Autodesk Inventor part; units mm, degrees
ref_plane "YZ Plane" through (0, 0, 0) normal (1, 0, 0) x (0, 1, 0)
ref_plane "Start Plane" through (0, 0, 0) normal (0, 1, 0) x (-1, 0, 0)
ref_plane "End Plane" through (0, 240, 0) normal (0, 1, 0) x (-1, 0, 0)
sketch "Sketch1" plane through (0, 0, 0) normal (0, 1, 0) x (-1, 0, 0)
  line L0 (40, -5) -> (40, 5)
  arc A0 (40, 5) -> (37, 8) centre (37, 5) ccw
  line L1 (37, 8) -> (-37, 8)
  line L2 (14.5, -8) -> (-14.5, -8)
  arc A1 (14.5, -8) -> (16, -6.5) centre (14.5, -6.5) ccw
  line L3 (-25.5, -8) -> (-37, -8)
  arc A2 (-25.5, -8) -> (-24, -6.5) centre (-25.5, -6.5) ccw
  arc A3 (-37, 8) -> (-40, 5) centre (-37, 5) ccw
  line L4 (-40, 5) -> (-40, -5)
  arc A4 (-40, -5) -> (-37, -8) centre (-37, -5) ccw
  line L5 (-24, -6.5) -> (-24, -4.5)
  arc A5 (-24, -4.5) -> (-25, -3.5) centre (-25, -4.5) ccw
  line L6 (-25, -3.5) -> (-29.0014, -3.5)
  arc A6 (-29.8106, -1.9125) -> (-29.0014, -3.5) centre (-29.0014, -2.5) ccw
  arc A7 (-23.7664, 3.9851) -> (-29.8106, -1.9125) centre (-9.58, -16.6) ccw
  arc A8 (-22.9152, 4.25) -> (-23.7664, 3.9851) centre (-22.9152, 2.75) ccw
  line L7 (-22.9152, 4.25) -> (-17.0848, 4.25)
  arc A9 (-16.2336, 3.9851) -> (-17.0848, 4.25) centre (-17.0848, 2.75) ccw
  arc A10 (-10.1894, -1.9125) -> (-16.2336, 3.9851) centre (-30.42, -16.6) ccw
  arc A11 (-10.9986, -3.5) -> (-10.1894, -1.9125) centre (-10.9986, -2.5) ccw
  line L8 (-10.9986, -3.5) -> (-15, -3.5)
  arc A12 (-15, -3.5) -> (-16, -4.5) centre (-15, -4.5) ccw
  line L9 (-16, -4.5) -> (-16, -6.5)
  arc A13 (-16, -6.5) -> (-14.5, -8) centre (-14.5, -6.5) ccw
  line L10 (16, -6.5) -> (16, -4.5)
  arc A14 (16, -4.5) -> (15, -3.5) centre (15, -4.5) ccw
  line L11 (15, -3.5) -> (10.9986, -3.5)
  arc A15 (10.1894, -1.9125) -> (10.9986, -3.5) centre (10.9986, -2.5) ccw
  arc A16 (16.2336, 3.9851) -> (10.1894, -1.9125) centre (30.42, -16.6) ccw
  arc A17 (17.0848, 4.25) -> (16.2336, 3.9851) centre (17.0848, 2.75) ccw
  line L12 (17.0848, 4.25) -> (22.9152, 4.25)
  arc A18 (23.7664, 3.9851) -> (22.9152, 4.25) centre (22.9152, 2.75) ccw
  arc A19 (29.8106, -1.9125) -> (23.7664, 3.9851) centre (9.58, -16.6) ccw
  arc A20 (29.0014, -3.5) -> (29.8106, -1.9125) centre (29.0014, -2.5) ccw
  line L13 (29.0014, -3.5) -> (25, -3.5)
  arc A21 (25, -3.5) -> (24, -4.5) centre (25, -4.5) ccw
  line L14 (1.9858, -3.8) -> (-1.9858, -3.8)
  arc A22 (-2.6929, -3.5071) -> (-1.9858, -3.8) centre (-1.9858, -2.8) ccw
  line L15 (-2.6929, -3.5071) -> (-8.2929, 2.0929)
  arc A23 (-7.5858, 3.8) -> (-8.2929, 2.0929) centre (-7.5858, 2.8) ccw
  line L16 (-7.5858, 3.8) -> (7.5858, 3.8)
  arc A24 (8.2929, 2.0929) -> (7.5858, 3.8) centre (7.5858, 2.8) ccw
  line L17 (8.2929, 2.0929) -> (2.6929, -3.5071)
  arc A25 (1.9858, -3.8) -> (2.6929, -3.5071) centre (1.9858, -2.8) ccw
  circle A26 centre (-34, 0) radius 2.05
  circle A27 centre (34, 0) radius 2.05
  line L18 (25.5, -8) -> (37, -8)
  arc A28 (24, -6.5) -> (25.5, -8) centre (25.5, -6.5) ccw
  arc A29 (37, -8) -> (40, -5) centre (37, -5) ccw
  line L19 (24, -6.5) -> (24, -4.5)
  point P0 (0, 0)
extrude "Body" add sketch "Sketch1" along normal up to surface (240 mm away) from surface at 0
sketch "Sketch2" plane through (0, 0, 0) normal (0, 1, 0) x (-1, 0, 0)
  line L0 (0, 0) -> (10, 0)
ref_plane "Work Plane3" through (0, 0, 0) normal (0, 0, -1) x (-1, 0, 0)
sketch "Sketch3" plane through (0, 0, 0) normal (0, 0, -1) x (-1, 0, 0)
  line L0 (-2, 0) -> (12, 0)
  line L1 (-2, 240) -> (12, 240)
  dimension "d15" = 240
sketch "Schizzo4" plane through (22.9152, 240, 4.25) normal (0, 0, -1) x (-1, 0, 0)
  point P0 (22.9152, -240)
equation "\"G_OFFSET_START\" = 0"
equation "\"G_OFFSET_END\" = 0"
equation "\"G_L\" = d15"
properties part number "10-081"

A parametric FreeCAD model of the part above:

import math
import FreeCAD as App
import Part
import Sketcher

V = App.Vector

doc = App.newDocument("Part")
body = doc.addObject("PartDesign::Body", "Body")

# Sketch on XZ plane
sketch1 = doc.addObject("Sketcher::SketchObject", "Sketch")
body.addObject(sketch1)
sketch1.AttachmentSupport = (doc.XZ_Plane, [""])
sketch1.MapMode = "FlatFace"
sketch1.addGeometry(Part.ArcOfCircle(Part.Circle(V(-37, -5, 0), V(0, 0, 1), 3), math.radians(180), math.radians(270)), False)
sketch1.addGeometry(Part.LineSegment(V(-40, -5, 0), V(-40, 5, 0)), False)
sketch1.addGeometry(Part.ArcOfCircle(Part.Circle(V(-37, 5, 0), V(0, 0, 1), 3), math.radians(90), math.radians(180)), False)
sketch1.addGeometry(Part.LineSegment(V(-37, 8, 0), V(37, 8, 0)), False)
sketch1.addGeometry(Part.ArcOfCircle(Part.Circle(V(37, 5, 0), V(0, 0, 1), 3), math.radians(0), math.radians(90)), False)
sketch1.addGeometry(Part.LineSegment(V(40, 5, 0), V(40, -5, 0)), False)
sketch1.addGeometry(Part.ArcOfCircle(Part.Circle(V(37, -5, 0), V(0, 0, 1), 3), math.radians(-90), math.radians(0)), False)
sketch1.addGeometry(Part.LineSegment(V(37, -8, 0), V(25.5, -8, 0)), False)
sketch1.addGeometry(Part.ArcOfCircle(Part.Circle(V(25.5, -6.5, 0), V(0, 0, 1), 1.5), math.radians(180), math.radians(270)), False)
sketch1.addGeometry(Part.LineSegment(V(24, -6.5, 0), V(24, -4.5, 0)), False)
sketch1.addGeometry(Part.ArcOfCircle(Part.Circle(V(25, -4.5, 0), V(0, 0, 1), 1), math.radians(90), math.radians(180)), False)
sketch1.addGeometry(Part.LineSegment(V(25, -3.5, 0), V(29, -3.5, 0)), False)
sketch1.addGeometry(Part.ArcOfCircle(Part.Circle(V(29, -2.5, 0), V(0, 0, 1), 1), math.radians(-90), math.radians(36)), False)
sketch1.addGeometry(Part.ArcOfCircle(Part.Circle(V(9.6, -16.6, 0), V(0, 0, 1), 25), math.radians(35.98), math.radians(55.43)), False)
sketch1.addGeometry(Part.ArcOfCircle(Part.Circle(V(22.9, 2.8, 0), V(0, 0, 1), 1.5), math.radians(55), math.radians(90)), False)
sketch1.addGeometry(Part.LineSegment(V(22.9, 4.2, 0), V(17.1, 4.2, 0)), False)
sketch1.addGeometry(Part.ArcOfCircle(Part.Circle(V(17.1, 2.8, 0), V(0, 0, 1), 1.5), math.radians(90), math.radians(125)), False)
sketch1.addGeometry(Part.ArcOfCircle(Part.Circle(V(30.4, -16.6, 0), V(0, 0, 1), 25), math.radians(124.57), math.radians(144.02)), False)
sketch1.addGeometry(Part.ArcOfCircle(Part.Circle(V(11, -2.5, 0), V(0, 0, 1), 1), math.radians(144), math.radians(270)), False)
sketch1.addGeometry(Part.LineSegment(V(11, -3.5, 0), V(15, -3.5, 0)), False)
sketch1.addGeometry(Part.ArcOfCircle(Part.Circle(V(15, -4.5, 0), V(0, 0, 1), 1), math.radians(0), math.radians(90)), False)
sketch1.addGeometry(Part.LineSegment(V(16, -4.5, 0), V(16, -6.5, 0)), False)
sketch1.addGeometry(Part.ArcOfCircle(Part.Circle(V(14.5, -6.5, 0), V(0, 0, 1), 1.5), math.radians(-90), math.radians(0)), False)
sketch1.addGeometry(Part.LineSegment(V(14.5, -8, 0), V(-14.5, -8, 0)), False)
sketch1.addGeometry(Part.ArcOfCircle(Part.Circle(V(-14.5, -6.5, 0), V(0, 0, 1), 1.5), math.radians(180), math.radians(270)), False)
sketch1.addGeometry(Part.LineSegment(V(-16, -6.5, 0), V(-16, -4.5, 0)), False)
sketch1.addGeometry(Part.ArcOfCircle(Part.Circle(V(-15, -4.5, 0), V(0, 0, 1), 1), math.radians(90), math.radians(180)), False)
sketch1.addGeometry(Part.LineSegment(V(-15, -3.5, 0), V(-11, -3.5, 0)), False)
sketch1.addGeometry(Part.ArcOfCircle(Part.Circle(V(-11, -2.5, 0), V(0, 0, 1), 1), math.radians(-90), math.radians(36)), False)
sketch1.addGeometry(Part.ArcOfCircle(Part.Circle(V(-30.4, -16.6, 0), V(0, 0, 1), 25), math.radians(35.98), math.radians(55.43)), False)
sketch1.addGeometry(Part.ArcOfCircle(Part.Circle(V(-17.1, 2.8, 0), V(0, 0, 1), 1.5), math.radians(55), math.radians(90)), False)
sketch1.addGeometry(Part.LineSegment(V(-17.1, 4.2, 0), V(-22.9, 4.2, 0)), False)
sketch1.addGeometry(Part.ArcOfCircle(Part.Circle(V(-22.9, 2.8, 0), V(0, 0, 1), 1.5), math.radians(90), math.radians(125)), False)
sketch1.addGeometry(Part.ArcOfCircle(Part.Circle(V(-9.6, -16.6, 0), V(0, 0, 1), 25), math.radians(124.57), math.radians(144.02)), False)
sketch1.addGeometry(Part.ArcOfCircle(Part.Circle(V(-29, -2.5, 0), V(0, 0, 1), 1), math.radians(144), math.radians(270)), False)
sketch1.addGeometry(Part.LineSegment(V(-29, -3.5, 0), V(-25, -3.5, 0)), False)
sketch1.addGeometry(Part.ArcOfCircle(Part.Circle(V(-25, -4.5, 0), V(0, 0, 1), 1), math.radians(0), math.radians(90)), False)
sketch1.addGeometry(Part.LineSegment(V(-24, -4.5, 0), V(-24, -6.5, 0)), False)
sketch1.addGeometry(Part.ArcOfCircle(Part.Circle(V(-25.5, -6.5, 0), V(0, 0, 1), 1.5), math.radians(-90), math.radians(0)), False)
sketch1.addGeometry(Part.LineSegment(V(-25.5, -8, 0), V(-37, -8, 0)), False)
sketch1.addGeometry(Part.ArcOfCircle(Part.Circle(V(-2, -2.8, 0), V(0, 0, 1), 1), math.radians(-135), math.radians(-90)), False)
sketch1.addGeometry(Part.LineSegment(V(-2, -3.8, 0), V(2, -3.8, 0)), False)
sketch1.addGeometry(Part.ArcOfCircle(Part.Circle(V(2, -2.8, 0), V(0, 0, 1), 1), math.radians(-90), math.radians(-45)), False)
sketch1.addGeometry(Part.LineSegment(V(2.7, -3.5, 0), V(8.3, 2.1, 0)), False)
sketch1.addGeometry(Part.ArcOfCircle(Part.Circle(V(7.6, 2.8, 0), V(0, 0, 1), 1), math.radians(-45), math.radians(90)), False)
sketch1.addGeometry(Part.LineSegment(V(7.6, 3.8, 0), V(-7.6, 3.8, 0)), False)
sketch1.addGeometry(Part.ArcOfCircle(Part.Circle(V(-7.6, 2.8, 0), V(0, 0, 1), 1), math.radians(90), math.radians(225)), False)
sketch1.addGeometry(Part.LineSegment(V(-8.3, 2.1, 0), V(-2.7, -3.5, 0)), False)
sketch1.addGeometry(Part.Circle(V(34, 0, 0), V(0, 0, 1), 2), False)
sketch1.addGeometry(Part.Circle(V(-34, 0, 0), V(0, 0, 1), 2), False)
sketch1.addConstraint(Sketcher.Constraint("Tangent", 0, 1, 1, 1))
sketch1.addConstraint(Sketcher.Constraint("Tangent", 1, 2, 2, 2))
sketch1.addConstraint(Sketcher.Constraint("Tangent", 2, 1, 3, 1))
sketch1.addConstraint(Sketcher.Constraint("Tangent", 3, 2, 4, 2))
sketch1.addConstraint(Sketcher.Constraint("Tangent", 4, 1, 5, 1))
sketch1.addConstraint(Sketcher.Constraint("Tangent", 5, 2, 6, 2))
sketch1.addConstraint(Sketcher.Constraint("Tangent", 6, 1, 7, 1))
sketch1.addConstraint(Sketcher.Constraint("Tangent", 7, 2, 8, 2))
sketch1.addConstraint(Sketcher.Constraint("Tangent", 8, 1, 9, 1))
sketch1.addConstraint(Sketcher.Constraint("Tangent", 9, 2, 10, 2))
sketch1.addConstraint(Sketcher.Constraint("Tangent", 10, 1, 11, 1))
sketch1.addConstraint(Sketcher.Constraint("Tangent", 11, 2, 12, 1))
sketch1.addConstraint(Sketcher.Constraint("Tangent", 12, 2, 13, 1))
sketch1.addConstraint(Sketcher.Constraint("Tangent", 13, 2, 14, 1))
sketch1.addConstraint(Sketcher.Constraint("Tangent", 14, 2, 15, 1))
sketch1.addConstraint(Sketcher.Constraint("Tangent", 15, 2, 16, 1))
sketch1.addConstraint(Sketcher.Constraint("Tangent", 16, 2, 17, 1))
sketch1.addConstraint(Sketcher.Constraint("Tangent", 17, 2, 18, 1))
sketch1.addConstraint(Sketcher.Constraint("Tangent", 18, 2, 19, 1))
sketch1.addConstraint(Sketcher.Constraint("Tangent", 19, 2, 20, 2))
sketch1.addConstraint(Sketcher.Constraint("Tangent", 20, 1, 21, 1))
sketch1.addConstraint(Sketcher.Constraint("Tangent", 21, 2, 22, 2))
sketch1.addConstraint(Sketcher.Constraint("Tangent", 22, 1, 23, 1))
sketch1.addConstraint(Sketcher.Constraint("Tangent", 23, 2, 24, 2))
sketch1.addConstraint(Sketcher.Constraint("Tangent", 24, 1, 25, 1))
sketch1.addConstraint(Sketcher.Constraint("Tangent", 25, 2, 26, 2))
sketch1.addConstraint(Sketcher.Constraint("Tangent", 26, 1, 27, 1))
sketch1.addConstraint(Sketcher.Constraint("Tangent", 27, 2, 28, 1))
sketch1.addConstraint(Sketcher.Constraint("Tangent", 28, 2, 29, 1))
sketch1.addConstraint(Sketcher.Constraint("Tangent", 29, 2, 30, 1))
sketch1.addConstraint(Sketcher.Constraint("Tangent", 30, 2, 31, 1))
sketch1.addConstraint(Sketcher.Constraint("Tangent", 31, 2, 32, 1))
sketch1.addConstraint(Sketcher.Constraint("Tangent", 32, 2, 33, 1))
sketch1.addConstraint(Sketcher.Constraint("Tangent", 33, 2, 34, 1))
sketch1.addConstraint(Sketcher.Constraint("Tangent", 34, 2, 35, 1))
sketch1.addConstraint(Sketcher.Constraint("Tangent", 35, 2, 36, 2))
sketch1.addConstraint(Sketcher.Constraint("Tangent", 36, 1, 37, 1))
sketch1.addConstraint(Sketcher.Constraint("Tangent", 37, 2, 38, 2))
sketch1.addConstraint(Sketcher.Constraint("Tangent", 38, 1, 39, 1))
sketch1.addConstraint(Sketcher.Constraint("Tangent", 39, 2, 0, 2))
sketch1.addConstraint(Sketcher.Constraint("Tangent", 40, 2, 41, 1))
sketch1.addConstraint(Sketcher.Constraint("Tangent", 41, 2, 42, 1))
sketch1.addConstraint(Sketcher.Constraint("Tangent", 42, 2, 43, 1))
sketch1.addConstraint(Sketcher.Constraint("Tangent", 43, 2, 44, 1))
sketch1.addConstraint(Sketcher.Constraint("Tangent", 44, 2, 45, 1))
sketch1.addConstraint(Sketcher.Constraint("Tangent", 45, 2, 46, 1))
sketch1.addConstraint(Sketcher.Constraint("Tangent", 46, 2, 47, 1))
sketch1.addConstraint(Sketcher.Constraint("Tangent", 47, 2, 40, 1))
sketch1.addConstraint(Sketcher.Constraint("Vertical", 1))
sketch1.addConstraint(Sketcher.Constraint("Horizontal", 3))
sketch1.addConstraint(Sketcher.Constraint("Vertical", 5))
sketch1.addConstraint(Sketcher.Constraint("Horizontal", 7))
sketch1.addConstraint(Sketcher.Constraint("Vertical", 9))
sketch1.addConstraint(Sketcher.Constraint("Horizontal", 11))
sketch1.addConstraint(Sketcher.Constraint("Horizontal", 15))
sketch1.addConstraint(Sketcher.Constraint("Horizontal", 19))
sketch1.addConstraint(Sketcher.Constraint("Vertical", 21))
sketch1.addConstraint(Sketcher.Constraint("Horizontal", 23))
sketch1.addConstraint(Sketcher.Constraint("Vertical", 25))
sketch1.addConstraint(Sketcher.Constraint("Horizontal", 27))
sketch1.addConstraint(Sketcher.Constraint("Horizontal", 31))
sketch1.addConstraint(Sketcher.Constraint("Horizontal", 35))
sketch1.addConstraint(Sketcher.Constraint("Vertical", 37))
sketch1.addConstraint(Sketcher.Constraint("Horizontal", 39))
sketch1.addConstraint(Sketcher.Constraint("Horizontal", 41))
sketch1.addConstraint(Sketcher.Constraint("Horizontal", 45))
sketch1.addConstraint(Sketcher.Constraint("Equal", 0, 2))
sketch1.addConstraint(Sketcher.Constraint("Equal", 2, 4))
sketch1.addConstraint(Sketcher.Constraint("Equal", 4, 6))
sketch1.addConstraint(Sketcher.Constraint("Equal", 10, 12))
sketch1.addConstraint(Sketcher.Constraint("Equal", 8, 14))
sketch1.addConstraint(Sketcher.Constraint("Equal", 14, 16))
sketch1.addConstraint(Sketcher.Constraint("Equal", 13, 17))
sketch1.addConstraint(Sketcher.Constraint("Equal", 12, 18))
sketch1.addConstraint(Sketcher.Constraint("Equal", 18, 20))
sketch1.addConstraint(Sketcher.Constraint("Equal", 16, 22))
sketch1.addConstraint(Sketcher.Constraint("Equal", 22, 24))
sketch1.addConstraint(Sketcher.Constraint("Equal", 20, 26))
sketch1.addConstraint(Sketcher.Constraint("Equal", 26, 28))
sketch1.addConstraint(Sketcher.Constraint("Equal", 17, 29))
sketch1.addConstraint(Sketcher.Constraint("Equal", 24, 30))
sketch1.addConstraint(Sketcher.Constraint("Equal", 30, 32))
sketch1.addConstraint(Sketcher.Constraint("Equal", 29, 33))
sketch1.addConstraint(Sketcher.Constraint("Equal", 28, 34))
sketch1.addConstraint(Sketcher.Constraint("Equal", 34, 36))
sketch1.addConstraint(Sketcher.Constraint("Equal", 32, 38))
sketch1.addConstraint(Sketcher.Constraint("Equal", 36, 40))
sketch1.addConstraint(Sketcher.Constraint("Equal", 40, 42))
sketch1.addConstraint(Sketcher.Constraint("Equal", 42, 44))
sketch1.addConstraint(Sketcher.Constraint("Equal", 44, 46))
sketch1.addConstraint(Sketcher.Constraint("Equal", 48, 49))
sketch1.addConstraint(Sketcher.Constraint("Symmetric", 0, 3, 4, 3, -1, 1))
sketch1.addConstraint(Sketcher.Constraint("Symmetric", 48, 3, 49, 3, -1, 1))
sketch1.addConstraint(Sketcher.Constraint("Symmetric", 20, 3, 26, 3, -2))
sketch1.addConstraint(Sketcher.Constraint("Symmetric", 17, 3, 29, 3, -2))
sketch1.addConstraint(Sketcher.Constraint("Symmetric", 14, 3, 32, 3, -2))
sketch1.addConstraint(Sketcher.Constraint("Symmetric", 12, 3, 34, 3, -2))
sketch1.addConstraint(Sketcher.Constraint("Symmetric", 8, 3, 38, 3, -2))
sketch1.addConstraint(Sketcher.Constraint("Symmetric", 43, 2, 46, 2, -2))
sketch1.addConstraint(Sketcher.Constraint("PointOnObject", 48, 3, -1))
sketch1.addConstraint(Sketcher.Constraint("Perpendicular", 43, 47))
sketch1.addConstraint(Sketcher.Constraint("Horizontal", 13, 3, 17, 3))
sketch1.addConstraint(Sketcher.Constraint("Horizontal", 12, 3, 18, 3))
sketch1.addConstraint(Sketcher.Constraint("Horizontal", 8, 3, 22, 3))
sketch1.addConstraint(Sketcher.Constraint("Equal", 11, 19))
sketch1.addConstraint(Sketcher.Constraint("Radius", 0, 3.0))
sketch1.addConstraint(Sketcher.Constraint("Radius", 10, 1.0))
sketch1.addConstraint(Sketcher.Constraint("Radius", 13, 25.0))
sketch1.addConstraint(Sketcher.Constraint("Diameter", 48, 4.1))
sketch1.addConstraint(Sketcher.Constraint("Radius", 8, 1.5))
sketch1.addConstraint(Sketcher.Constraint("DistanceX", 3, 1, 3, 2, 74.0))
sketch1.addConstraint(Sketcher.Constraint("DistanceX", 23, 2, 23, 1, 29.0))
sketch1.addConstraint(Sketcher.Constraint("DistanceY", 1, 1, 1, 2, 10.0))
sketch1.addConstraint(Sketcher.Constraint("DistanceY", 9, 1, 9, 2, 2.0))
sketch1.addConstraint(Sketcher.Constraint("DistanceX", 7, 2, 7, 1, 11.5))
sketch1.addConstraint(Sketcher.Constraint("DistanceX", -1, 1, 48, 3, 34.0))
sketch1.addConstraint(Sketcher.Constraint("DistanceY", 13, 3, -1, 1, 16.6))
sketch1.addConstraint(Sketcher.Constraint("DistanceY", 40, 3, -1, 1, 2.8))
sketch1.addConstraint(Sketcher.Constraint("DistanceY", -1, 1, 44, 3, 2.8))
sketch1.addConstraint(Sketcher.Constraint("DistanceX", -1, 1, 13, 3, 9.58))
sketch1.addConstraint(Sketcher.Constraint("DistanceY", -1, 1, 14, 3, 2.75))
sketch1.addConstraint(Sketcher.Constraint("DistanceX", 41, 1, 41, 2, 3.9716))
pad1 = doc.addObject("PartDesign::Pad", "Pad")
body.addObject(pad1)
pad1.Profile = sketch1
pad1.Length = 240
pad1.Reversed = True

doc.recompute()
